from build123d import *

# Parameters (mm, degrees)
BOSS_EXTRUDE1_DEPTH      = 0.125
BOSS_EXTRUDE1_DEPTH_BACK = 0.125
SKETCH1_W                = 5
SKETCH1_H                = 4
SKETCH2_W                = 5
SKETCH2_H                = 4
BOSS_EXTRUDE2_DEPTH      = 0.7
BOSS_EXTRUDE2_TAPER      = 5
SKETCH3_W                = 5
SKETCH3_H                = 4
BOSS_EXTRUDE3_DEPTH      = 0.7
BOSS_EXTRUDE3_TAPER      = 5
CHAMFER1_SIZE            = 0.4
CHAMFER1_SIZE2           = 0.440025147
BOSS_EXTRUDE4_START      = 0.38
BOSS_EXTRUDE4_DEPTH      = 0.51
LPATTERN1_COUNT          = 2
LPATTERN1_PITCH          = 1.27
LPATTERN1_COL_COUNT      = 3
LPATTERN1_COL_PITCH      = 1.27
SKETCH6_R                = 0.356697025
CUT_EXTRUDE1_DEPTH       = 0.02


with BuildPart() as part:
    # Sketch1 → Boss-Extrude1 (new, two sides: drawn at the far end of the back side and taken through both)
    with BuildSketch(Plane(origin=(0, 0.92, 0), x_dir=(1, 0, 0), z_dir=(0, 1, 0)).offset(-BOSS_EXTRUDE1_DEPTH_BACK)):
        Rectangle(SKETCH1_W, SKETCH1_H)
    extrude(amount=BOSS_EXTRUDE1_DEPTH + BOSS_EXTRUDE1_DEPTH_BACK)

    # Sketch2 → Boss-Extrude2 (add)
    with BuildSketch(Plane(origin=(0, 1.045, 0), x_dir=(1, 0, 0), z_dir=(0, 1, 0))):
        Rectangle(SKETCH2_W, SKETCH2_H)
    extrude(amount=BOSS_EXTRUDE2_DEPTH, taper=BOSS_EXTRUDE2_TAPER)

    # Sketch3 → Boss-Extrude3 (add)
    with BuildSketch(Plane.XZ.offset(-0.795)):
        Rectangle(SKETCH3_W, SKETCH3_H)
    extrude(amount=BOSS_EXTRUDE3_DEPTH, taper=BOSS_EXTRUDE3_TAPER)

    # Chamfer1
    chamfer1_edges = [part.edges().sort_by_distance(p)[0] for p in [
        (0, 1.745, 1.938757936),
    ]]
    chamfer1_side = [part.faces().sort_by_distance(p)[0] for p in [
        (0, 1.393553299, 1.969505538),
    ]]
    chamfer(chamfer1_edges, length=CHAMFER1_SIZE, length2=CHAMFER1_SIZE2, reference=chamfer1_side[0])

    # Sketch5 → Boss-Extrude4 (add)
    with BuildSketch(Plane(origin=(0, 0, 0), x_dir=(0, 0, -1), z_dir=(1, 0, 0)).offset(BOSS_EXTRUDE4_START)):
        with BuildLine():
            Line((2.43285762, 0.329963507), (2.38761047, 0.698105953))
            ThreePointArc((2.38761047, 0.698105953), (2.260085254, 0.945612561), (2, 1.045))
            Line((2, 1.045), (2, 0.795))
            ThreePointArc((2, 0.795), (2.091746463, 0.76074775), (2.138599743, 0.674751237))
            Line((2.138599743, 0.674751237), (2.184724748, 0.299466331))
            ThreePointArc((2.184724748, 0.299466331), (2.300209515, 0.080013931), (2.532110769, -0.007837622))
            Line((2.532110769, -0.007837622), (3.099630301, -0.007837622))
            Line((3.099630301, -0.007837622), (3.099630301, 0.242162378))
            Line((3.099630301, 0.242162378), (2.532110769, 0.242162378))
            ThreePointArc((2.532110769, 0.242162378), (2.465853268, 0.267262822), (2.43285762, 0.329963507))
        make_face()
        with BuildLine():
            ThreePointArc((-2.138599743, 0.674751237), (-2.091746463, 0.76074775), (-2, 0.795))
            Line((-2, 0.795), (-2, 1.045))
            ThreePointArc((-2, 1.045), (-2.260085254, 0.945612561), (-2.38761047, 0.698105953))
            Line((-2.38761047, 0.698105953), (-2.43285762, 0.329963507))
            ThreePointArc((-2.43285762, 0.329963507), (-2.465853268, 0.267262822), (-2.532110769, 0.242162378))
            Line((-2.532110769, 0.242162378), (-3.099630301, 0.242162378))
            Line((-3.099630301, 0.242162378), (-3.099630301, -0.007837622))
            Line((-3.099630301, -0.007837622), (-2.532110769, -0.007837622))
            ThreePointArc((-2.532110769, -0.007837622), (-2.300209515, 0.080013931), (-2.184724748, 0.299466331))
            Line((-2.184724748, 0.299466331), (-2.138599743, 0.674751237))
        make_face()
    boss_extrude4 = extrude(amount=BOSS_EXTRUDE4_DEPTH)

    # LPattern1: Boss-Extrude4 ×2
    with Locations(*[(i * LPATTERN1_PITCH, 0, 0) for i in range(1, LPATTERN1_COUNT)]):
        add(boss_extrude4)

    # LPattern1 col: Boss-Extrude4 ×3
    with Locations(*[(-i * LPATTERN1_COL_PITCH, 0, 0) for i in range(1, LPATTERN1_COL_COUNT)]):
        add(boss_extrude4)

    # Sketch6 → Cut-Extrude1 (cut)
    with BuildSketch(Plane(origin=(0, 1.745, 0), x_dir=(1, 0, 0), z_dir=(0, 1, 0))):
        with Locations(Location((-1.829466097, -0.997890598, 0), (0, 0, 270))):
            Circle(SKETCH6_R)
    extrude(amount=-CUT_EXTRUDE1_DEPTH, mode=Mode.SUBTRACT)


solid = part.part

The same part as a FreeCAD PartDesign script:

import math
import FreeCAD as App
import Part
import Sketcher

V = App.Vector


def edges_at(feature, points):
    """Names of the edges that pass closest to the given points."""
    edges = feature.Shape.Edges
    near = lambda p: min(range(len(edges)), key=lambda i: edges[i].distToShape(Part.Vertex(*p))[0])
    return sorted({f"Edge{near(p) + 1}" for p in points})

doc = App.newDocument("Part")
body = doc.addObject("PartDesign::Body", "Body")

sketch1 = body.newObject("Sketcher::SketchObject", "Sketch")
sketch1.AttachmentSupport = (doc.getObject("XZ_Plane"), [""])
sketch1.MapMode = "FlatFace"
sketch1.AttachmentOffset = App.Placement(V(0, 0, -0.92), App.Rotation())
sketch1.addGeometry([
    Part.LineSegment(V(-2.5, -2, 0), V(-2.5, 2, 0)),
    Part.LineSegment(V(-2.5, 2, 0), V(2.5, 2, 0)),
    Part.LineSegment(V(2.5, 2, 0), V(2.5, -2, 0)),
    Part.LineSegment(V(2.5, -2, 0), V(-2.5, -2, 0)),
], False)
sketch1.addConstraint([
    Sketcher.Constraint("Coincident", 0, 2, 1, 1),
    Sketcher.Constraint("Coincident", 1, 2, 2, 1),
    Sketcher.Constraint("Coincident", 2, 2, 3, 1),
    Sketcher.Constraint("Coincident", 3, 2, 0, 1),
    Sketcher.Constraint("Vertical", 0),
    Sketcher.Constraint("Horizontal", 1),
    Sketcher.Constraint("Vertical", 2),
    Sketcher.Constraint("Horizontal", 3),
    Sketcher.Constraint("Symmetric", 0, 2, 2, 2, -1, 1),
    Sketcher.Constraint("DistanceX", 1, 1, 1, 2, 5.0),
    Sketcher.Constraint("DistanceY", 0, 1, 0, 2, 4.0),
])
pad1 = body.newObject("PartDesign::Pad", "Pad")
pad1.Profile = sketch1
pad1.Type = "TwoLengths"
pad1.Length = 0.125
pad1.Length2 = 0.125
pad1.Reversed = True

sketch2 = body.newObject("Sketcher::SketchObject", "Sketch001")
sketch2.AttachmentSupport = (doc.getObject("XZ_Plane"), [""])
sketch2.MapMode = "FlatFace"
sketch2.AttachmentOffset = App.Placement(V(0, 0, -1.045), App.Rotation())
sketch2.addGeometry([
    Part.LineSegment(V(-2.5, -2, 0), V(-2.5, 2, 0)),
    Part.LineSegment(V(-2.5, 2, 0), V(2.5, 2, 0)),
    Part.LineSegment(V(2.5, 2, 0), V(2.5, -2, 0)),
    Part.LineSegment(V(2.5, -2, 0), V(-2.5, -2, 0)),
], False)
sketch2.addConstraint([
    Sketcher.Constraint("Coincident", 0, 2, 1, 1),
    Sketcher.Constraint("Coincident", 1, 2, 2, 1),
    Sketcher.Constraint("Coincident", 2, 2, 3, 1),
    Sketcher.Constraint("Coincident", 3, 2, 0, 1),
    Sketcher.Constraint("Vertical", 0),
    Sketcher.Constraint("Horizontal", 1),
    Sketcher.Constraint("Vertical", 2),
    Sketcher.Constraint("Horizontal", 3),
    Sketcher.Constraint("Symmetric", 0, 2, 2, 2, -1, 1),
    Sketcher.Constraint("DistanceX", 1, 1, 1, 2, 5.0),
    Sketcher.Constraint("DistanceY", 0, 1, 0, 2, 4.0),
])
pad2 = body.newObject("PartDesign::Pad", "Pad001")
pad2.Profile = sketch2
pad2.Length = 0.7
pad2.Reversed = True
pad2.TaperAngle = -5

sketch3 = body.newObject("Sketcher::SketchObject", "Sketch002")
sketch3.AttachmentSupport = (doc.getObject("XZ_Plane"), [""])
sketch3.MapMode = "FlatFace"
sketch3.AttachmentOffset = App.Placement(V(0, 0, -0.795), App.Rotation())
sketch3.addGeometry([
    Part.LineSegment(V(-2.5, 2, 0), V(-2.5, -2, 0)),
    Part.LineSegment(V(-2.5, -2, 0), V(2.5, -2, 0)),
    Part.LineSegment(V(2.5, -2, 0), V(2.5, 2, 0)),
    Part.LineSegment(V(2.5, 2, 0), V(-2.5, 2, 0)),
], False)
sketch3.addConstraint([
    Sketcher.Constraint("Coincident", 0, 2, 1, 1),
    Sketcher.Constraint("Coincident", 1, 2, 2, 1),
    Sketcher.Constraint("Coincident", 2, 2, 3, 1),
    Sketcher.Constraint("Coincident", 3, 2, 0, 1),
    Sketcher.Constraint("Vertical", 0),
    Sketcher.Constraint("Horizontal", 1),
    Sketcher.Constraint("Vertical", 2),
    Sketcher.Constraint("Horizontal", 3),
    Sketcher.Constraint("Symmetric", 0, 2, 2, 2, -1, 1),
    Sketcher.Constraint("DistanceX", 1, 1, 1, 2, 5.0),
    Sketcher.Constraint("DistanceY", 0, 2, 0, 1, 4.0),
])
pad3 = body.newObject("PartDesign::Pad", "Pad002")
pad3.Profile = sketch3
pad3.Length = 0.7
pad3.TaperAngle = -5
doc.recompute()

chamfer = body.newObject("PartDesign::Chamfer", "Chamfer")
chamfer.Base = (pad3, edges_at(pad3, [(0, 1.745, 1.939)]))
chamfer.ChamferType = "Two distances"
chamfer.Size = 0.4
chamfer.Size2 = 0.440025

sketch4 = body.newObject("Sketcher::SketchObject", "Sketch003")
sketch4.AttachmentSupport = (doc.getObject("YZ_Plane"), [""])
sketch4.MapMode = "FlatFace"
sketch4.AttachmentOffset = App.Placement(V(0, 0, 0.38), App.Rotation())
sketch4.addGeometry([
    Part.LineSegment(V(0.33, -2.43, 0), V(0.7, -2.39, 0)),
    Part.ArcOfCircle(Part.Circle(V(0.66, -2, 0), V(0, 0, 1), 0.39), math.radians(-84), math.radians(0)),
    Part.LineSegment(V(1.04, -2, 0), V(0.8, -2, 0)),
    Part.ArcOfCircle(Part.Circle(V(0.66, -2, 0), V(0, 0, 1), 0.14), math.radians(-82), math.radians(0)),
    Part.LineSegment(V(0.67, -2.14, 0), V(0.3, -2.18, 0)),
    Part.ArcOfCircle(Part.Circle(V(0.34, -2.53, 0), V(0, 0, 1), 0.35), math.radians(97), math.radians(180)),
    Part.LineSegment(V(-0.01, -2.53, 0), V(-0.01, -3.1, 0)),
    Part.LineSegment(V(-0.01, -3.1, 0), V(0.24, -3.1, 0)),
    Part.LineSegment(V(0.24, -3.1, 0), V(0.24, -2.53, 0)),
    Part.ArcOfCircle(Part.Circle(V(0.34, -2.53, 0), V(0, 0, 1), 0.1), math.radians(97), math.radians(180)),
    Part.ArcOfCircle(Part.Circle(V(0.66, 2, 0), V(0, 0, 1), 0.14), math.radians(0), math.radians(82)),
    Part.LineSegment(V(0.8, 2, 0), V(1.04, 2, 0)),
    Part.ArcOfCircle(Part.Circle(V(0.66, 2, 0), V(0, 0, 1), 0.39), math.radians(0), math.radians(84)),
    Part.LineSegment(V(0.7, 2.39, 0), V(0.33, 2.43, 0)),
    Part.ArcOfCircle(Part.Circle(V(0.34, 2.53, 0), V(0, 0, 1), 0.1), math.radians(-180), math.radians(-97)),
    Part.LineSegment(V(0.24, 2.53, 0), V(0.24, 3.1, 0)),
    Part.LineSegment(V(0.24, 3.1, 0), V(-0.01, 3.1, 0)),
    Part.LineSegment(V(-0.01, 3.1, 0), V(-0.01, 2.53, 0)),
    Part.ArcOfCircle(Part.Circle(V(0.34, 2.53, 0), V(0, 0, 1), 0.35), math.radians(-180), math.radians(-97)),
    Part.LineSegment(V(0.3, 2.18, 0), V(0.67, 2.14, 0)),
], False)
sketch4.addConstraint([
    Sketcher.Constraint("Coincident", 0, 2, 1, 1),
    Sketcher.Constraint("Coincident", 1, 2, 2, 1),
    Sketcher.Constraint("Coincident", 2, 2, 3, 2),
    Sketcher.Constraint("Coincident", 3, 1, 4, 1),
    Sketcher.Constraint("Tangent", 4, 2, 5, 1),
    Sketcher.Constraint("Tangent", 5, 2, 6, 1),
    Sketcher.Constraint("Coincident", 6, 2, 7, 1),
    Sketcher.Constraint("Coincident", 7, 2, 8, 1),
    Sketcher.Constraint("Tangent", 8, 2, 9, 2),
    Sketcher.Constraint("Tangent", 9, 1, 0, 1),
    Sketcher.Constraint("Coincident", 10, 1, 11, 1),
    Sketcher.Constraint("Coincident", 11, 2, 12, 1),
    Sketcher.Constraint("Coincident", 12, 2, 13, 1),
    Sketcher.Constraint("Tangent", 13, 2, 14, 2),
    Sketcher.Constraint("Tangent", 14, 1, 15, 1),
    Sketcher.Constraint("Coincident", 15, 2, 16, 1),
    Sketcher.Constraint("Coincident", 16, 2, 17, 1),
    Sketcher.Constraint("Tangent", 17, 2, 18, 1),
    Sketcher.Constraint("Tangent", 18, 2, 19, 1),
    Sketcher.Constraint("Coincident", 19, 2, 10, 2),
    Sketcher.Constraint("Horizontal", 2),
    Sketcher.Constraint("Vertical", 6),
    Sketcher.Constraint("Horizontal", 7),
    Sketcher.Constraint("Vertical", 8),
    Sketcher.Constraint("Horizontal", 11),
    Sketcher.Constraint("Vertical", 15),
    Sketcher.Constraint("Horizontal", 16),
    Sketcher.Constraint("Vertical", 17),
    Sketcher.Constraint("Coincident", 3, 3, 1, 3),
    Sketcher.Constraint("Coincident", 9, 3, 5, 3),
    Sketcher.Constraint("Coincident", 12, 3, 10, 3),
    Sketcher.Constraint("Coincident", 18, 3, 14, 3),
    Sketcher.Constraint("Equal", 3, 10),
    Sketcher.Constraint("Equal", 1, 12),
    Sketcher.Constraint("Equal", 9, 14),
    Sketcher.Constraint("Equal", 5, 18),
    Sketcher.Constraint("Symmetric", 1, 3, 10, 3, -1),
    Sketcher.Constraint("Symmetric", 5, 3, 14, 3, -1),
    Sketcher.Constraint("Parallel", 0, 4),
    Sketcher.Constraint("Parallel", 13, 19),
    Sketcher.Constraint("Horizontal", 3, 3, 1, 2),
    Sketcher.Constraint("Horizontal", 12, 3, 10, 1),
    Sketcher.Constraint("Vertical", 0, 2, 12, 2),
    Sketcher.Constraint("Equal", 2, 7),
    Sketcher.Constraint("Equal", 8, 15),
    Sketcher.Constraint("Radius", 9, 0.1),
    Sketcher.Constraint("Radius", 1, 0.39),
    Sketcher.Constraint("Radius", 3, 0.14),
    Sketcher.Constraint("DistanceY", 1, 3, -1, 1, 2.0),
    Sketcher.Constraint("DistanceX", -1, 1, 1, 3, 0.655),
    Sketcher.Constraint("DistanceY", 6, 2, 6, 1, 0.56752),
    Sketcher.Constraint("DistanceY", 3, 1, -1, 1, 2.1386),
    Sketcher.Constraint("DistanceY", 5, 3, 0, 2, 0.1445),
    Sketcher.Constraint("DistanceX", 9, 1, 5, 3, 0.012199),
])
pad4 = body.newObject("PartDesign::Pad", "Pad003")
pad4.Profile = sketch4
pad4.Length = 0.51
doc.recompute()

linearpattern = body.newObject("PartDesign::LinearPattern", "LinearPattern")
linearpattern.Originals = [pad4]
linearpattern.Direction = (doc.getObject("X_Axis"), [""])
linearpattern.Mode = "offset"
linearpattern.Offset = 1.27
linearpattern.Occurrences = 2
body.Tip = linearpattern
doc.recompute()

linearpattern2 = body.newObject("PartDesign::LinearPattern", "LinearPattern001")
linearpattern2.Originals = [pad4]
linearpattern2.Direction = (doc.getObject("X_Axis"), [""])
linearpattern2.Mode = "offset"
linearpattern2.Offset = 1.27
linearpattern2.Occurrences = 3
linearpattern2.Reversed = True
body.Tip = linearpattern2

sketch5 = body.newObject("Sketcher::SketchObject", "Sketch004")
sketch5.AttachmentSupport = (doc.getObject("XZ_Plane"), [""])
sketch5.MapMode = "FlatFace"
sketch5.AttachmentOffset = App.Placement(V(0, 0, -1.745), App.Rotation())
sketch5.addGeometry(Part.Circle(V(-1.83, 1, 0), V(0, 0, 1), 0.36), False)
sketch5.addConstraint([
    Sketcher.Constraint("Diameter", 0, 0.713394),
    Sketcher.Constraint("DistanceY", -1, 1, 0, 3, 0.997891),
    Sketcher.Constraint("DistanceX", 0, 3, -1, 1, 1.829466),
])
pocket1 = body.newObject("PartDesign::Pocket", "Pocket")
pocket1.Profile = sketch5
pocket1.Length = 0.02
pocket1.Reversed = True

doc.recompute()
